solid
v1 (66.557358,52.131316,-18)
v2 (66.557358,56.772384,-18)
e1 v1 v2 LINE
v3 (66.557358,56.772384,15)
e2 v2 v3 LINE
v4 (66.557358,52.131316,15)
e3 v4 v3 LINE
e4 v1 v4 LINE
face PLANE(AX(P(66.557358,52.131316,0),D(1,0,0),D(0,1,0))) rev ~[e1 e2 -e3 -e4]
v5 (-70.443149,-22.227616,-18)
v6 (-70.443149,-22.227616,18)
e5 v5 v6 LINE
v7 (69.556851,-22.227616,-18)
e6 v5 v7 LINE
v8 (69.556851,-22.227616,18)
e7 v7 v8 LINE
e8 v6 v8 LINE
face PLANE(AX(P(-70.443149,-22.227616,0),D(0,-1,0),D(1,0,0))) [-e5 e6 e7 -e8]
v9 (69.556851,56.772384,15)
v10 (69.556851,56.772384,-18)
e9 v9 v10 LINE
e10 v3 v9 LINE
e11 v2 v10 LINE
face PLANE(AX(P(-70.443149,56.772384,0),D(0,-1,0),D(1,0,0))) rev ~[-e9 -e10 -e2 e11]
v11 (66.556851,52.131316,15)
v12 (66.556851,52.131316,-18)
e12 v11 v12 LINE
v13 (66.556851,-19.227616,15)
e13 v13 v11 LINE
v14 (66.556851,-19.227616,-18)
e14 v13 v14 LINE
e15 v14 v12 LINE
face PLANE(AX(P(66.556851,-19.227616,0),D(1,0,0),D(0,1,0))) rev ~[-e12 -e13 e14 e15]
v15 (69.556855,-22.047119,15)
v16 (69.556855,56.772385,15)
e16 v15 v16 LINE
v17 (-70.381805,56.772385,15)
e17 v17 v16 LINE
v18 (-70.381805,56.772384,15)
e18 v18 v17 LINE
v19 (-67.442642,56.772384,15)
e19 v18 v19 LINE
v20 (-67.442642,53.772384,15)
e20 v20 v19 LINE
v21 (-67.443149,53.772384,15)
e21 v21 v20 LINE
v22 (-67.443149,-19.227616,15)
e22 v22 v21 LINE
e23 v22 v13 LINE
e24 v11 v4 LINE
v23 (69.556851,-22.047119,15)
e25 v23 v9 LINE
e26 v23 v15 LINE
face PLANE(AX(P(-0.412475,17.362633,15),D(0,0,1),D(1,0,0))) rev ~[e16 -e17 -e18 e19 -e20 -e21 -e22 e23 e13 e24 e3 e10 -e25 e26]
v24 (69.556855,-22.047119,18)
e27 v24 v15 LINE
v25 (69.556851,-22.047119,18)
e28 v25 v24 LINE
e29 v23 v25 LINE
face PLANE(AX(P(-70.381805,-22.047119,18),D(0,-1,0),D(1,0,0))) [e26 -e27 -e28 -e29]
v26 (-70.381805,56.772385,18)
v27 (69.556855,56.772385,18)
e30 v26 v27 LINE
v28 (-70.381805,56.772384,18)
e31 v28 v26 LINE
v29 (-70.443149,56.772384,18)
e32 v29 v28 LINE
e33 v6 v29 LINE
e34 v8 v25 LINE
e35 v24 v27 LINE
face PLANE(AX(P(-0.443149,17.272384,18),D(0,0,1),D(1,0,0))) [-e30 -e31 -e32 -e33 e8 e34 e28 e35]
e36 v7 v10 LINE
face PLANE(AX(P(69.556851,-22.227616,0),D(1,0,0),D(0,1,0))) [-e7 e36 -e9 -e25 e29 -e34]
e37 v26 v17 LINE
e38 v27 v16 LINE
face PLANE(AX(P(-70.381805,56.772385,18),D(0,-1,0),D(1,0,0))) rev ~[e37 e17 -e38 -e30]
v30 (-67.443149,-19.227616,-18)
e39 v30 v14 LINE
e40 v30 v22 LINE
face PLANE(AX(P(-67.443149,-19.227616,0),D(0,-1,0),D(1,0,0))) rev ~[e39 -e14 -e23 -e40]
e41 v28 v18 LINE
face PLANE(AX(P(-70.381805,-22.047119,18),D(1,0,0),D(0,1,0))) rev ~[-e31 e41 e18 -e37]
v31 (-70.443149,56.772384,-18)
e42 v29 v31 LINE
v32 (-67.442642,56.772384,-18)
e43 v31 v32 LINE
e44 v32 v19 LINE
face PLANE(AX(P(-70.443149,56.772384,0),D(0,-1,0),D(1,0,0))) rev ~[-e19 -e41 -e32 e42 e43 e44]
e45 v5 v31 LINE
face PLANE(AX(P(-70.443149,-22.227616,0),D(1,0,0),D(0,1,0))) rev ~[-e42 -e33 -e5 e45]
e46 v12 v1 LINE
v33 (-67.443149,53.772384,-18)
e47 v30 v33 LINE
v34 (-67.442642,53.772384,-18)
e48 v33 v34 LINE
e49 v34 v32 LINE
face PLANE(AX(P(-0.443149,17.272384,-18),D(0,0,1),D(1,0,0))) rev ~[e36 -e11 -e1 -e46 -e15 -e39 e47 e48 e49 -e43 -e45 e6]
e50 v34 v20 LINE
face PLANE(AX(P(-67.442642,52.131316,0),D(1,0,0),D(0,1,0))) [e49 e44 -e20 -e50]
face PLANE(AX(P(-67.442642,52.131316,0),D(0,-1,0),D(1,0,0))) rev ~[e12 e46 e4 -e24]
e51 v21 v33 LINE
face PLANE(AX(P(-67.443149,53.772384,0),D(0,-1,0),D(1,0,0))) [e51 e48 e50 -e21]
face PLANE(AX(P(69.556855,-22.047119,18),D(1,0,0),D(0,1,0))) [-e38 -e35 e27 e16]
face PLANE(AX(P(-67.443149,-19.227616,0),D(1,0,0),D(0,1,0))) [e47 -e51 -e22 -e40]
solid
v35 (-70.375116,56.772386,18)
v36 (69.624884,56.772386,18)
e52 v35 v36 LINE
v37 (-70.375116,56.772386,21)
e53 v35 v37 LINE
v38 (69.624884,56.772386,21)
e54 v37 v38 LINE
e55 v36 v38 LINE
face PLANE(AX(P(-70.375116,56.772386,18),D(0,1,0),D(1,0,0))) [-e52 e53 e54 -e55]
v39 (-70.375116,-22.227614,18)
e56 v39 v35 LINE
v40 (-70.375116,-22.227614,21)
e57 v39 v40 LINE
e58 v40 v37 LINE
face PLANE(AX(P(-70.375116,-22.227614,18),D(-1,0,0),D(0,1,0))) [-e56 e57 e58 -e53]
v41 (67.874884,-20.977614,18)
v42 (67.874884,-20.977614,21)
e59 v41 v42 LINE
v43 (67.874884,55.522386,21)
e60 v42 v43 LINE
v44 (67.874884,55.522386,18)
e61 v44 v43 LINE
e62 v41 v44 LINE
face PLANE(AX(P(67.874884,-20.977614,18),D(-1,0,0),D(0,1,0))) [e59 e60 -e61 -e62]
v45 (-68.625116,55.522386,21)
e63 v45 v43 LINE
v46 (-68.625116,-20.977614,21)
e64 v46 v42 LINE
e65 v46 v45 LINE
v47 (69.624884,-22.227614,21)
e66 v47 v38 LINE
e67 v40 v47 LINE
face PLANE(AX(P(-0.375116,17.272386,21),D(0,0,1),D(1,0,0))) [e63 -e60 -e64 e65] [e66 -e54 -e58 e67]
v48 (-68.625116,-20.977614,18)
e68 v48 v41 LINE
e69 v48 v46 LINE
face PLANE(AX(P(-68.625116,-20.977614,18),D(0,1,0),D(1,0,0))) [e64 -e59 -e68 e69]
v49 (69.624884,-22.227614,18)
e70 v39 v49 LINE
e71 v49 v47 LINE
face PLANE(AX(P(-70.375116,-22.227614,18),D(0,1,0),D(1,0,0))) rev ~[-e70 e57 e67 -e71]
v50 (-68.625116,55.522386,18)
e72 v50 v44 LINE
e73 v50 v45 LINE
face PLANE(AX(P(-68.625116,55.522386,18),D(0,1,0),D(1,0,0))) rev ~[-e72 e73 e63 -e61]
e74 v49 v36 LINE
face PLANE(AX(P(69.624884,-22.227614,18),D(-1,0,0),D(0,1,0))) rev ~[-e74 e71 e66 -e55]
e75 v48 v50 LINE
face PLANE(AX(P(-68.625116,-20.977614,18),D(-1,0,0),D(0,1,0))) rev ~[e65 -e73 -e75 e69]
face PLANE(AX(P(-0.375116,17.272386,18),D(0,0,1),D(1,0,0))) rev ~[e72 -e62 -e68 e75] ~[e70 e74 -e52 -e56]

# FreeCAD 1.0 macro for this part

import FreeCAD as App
import Part
import Sketcher
from FreeCAD import Vector
Q = App.Units.Quantity


def add_polygon(sketch, points):
    """Adds a closed chain of lines whose ends are joined by coincident constraints."""
    first, n = sketch.GeometryCount, len(points)
    for a, b in zip(points, points[1:] + points[:1]):
        sketch.addGeometry(Part.LineSegment(App.Vector(*a, 0), App.Vector(*b, 0)), False)
    for i in range(n):
        sketch.addConstraint(Sketcher.Constraint("Coincident", first + i, 2, first + (i + 1) % n, 1))

doc = App.newDocument("Part")
params = doc.addObject("Spreadsheet::Sheet", "Params")
for row, (alias, value) in enumerate([
    ("sketch1_width", "134 mm"),
    ("sketch1_height", "5 mm"),
    ("pad1_length", "15 mm"),
    ("pad1_length2", "18 mm"),
    ("sketch2_width", "140 mm"),
    ("sketch2_width2", "134 mm"),
    ("sketch2_height", "79 mm"),
    ("sketch2_height2", "73 mm"),
    ("pad2_length", "36 mm"),
    ("pad3_length", "3 mm"),
    ("sketch4_width", "140 mm"),
    ("sketch4_height", "79 mm"),
    ("sketch4_width2", "136.5 mm"),
    ("sketch4_height2", "76.5 mm"),
    ("pad4_length", "3 mm"),
], start=1):
    params.set(f"A{row}", alias)
    params.set(f"B{row}", "=" + value)
    params.setAlias(f"B{row}", alias)

body = doc.addObject("PartDesign::Body", "Body")

sketch1 = doc.addObject("Sketcher::SketchObject", "Sketch")
body.addObject(sketch1)
sketch1.AttachmentSupport = (doc.XY_Plane, [""])
sketch1.MapMode = "FlatFace"
add_polygon(sketch1, [(-67.442642, 57.131316), (-67.442642, 52.131316), (66.557358, 52.131316), (66.557358, 57.131316)])
sketch1.addConstraint(Sketcher.Constraint("Vertical", 0))
sketch1.addConstraint(Sketcher.Constraint("Horizontal", 1))
sketch1.addConstraint(Sketcher.Constraint("Vertical", 2))
sketch1.addConstraint(Sketcher.Constraint("Horizontal", 3))
sketch1.addConstraint(Sketcher.Constraint("DistanceX", 1, 1, 1, 2, Q("134 mm")))
sketch1.addConstraint(Sketcher.Constraint("DistanceY", 0, 2, 0, 1, Q("5 mm")))
sketch1.addConstraint(Sketcher.Constraint("DistanceX", 0, 2, -1, 1, Q("67.442642 mm")))
sketch1.addConstraint(Sketcher.Constraint("DistanceY", -1, 1, 0, 2, Q("52.131316 mm")))
sketch1.setExpression("Constraints[8]", "Params.sketch1_width")
sketch1.setExpression("Constraints[9]", "Params.sketch1_height")
pad1 = doc.addObject("PartDesign::Pad", "Pad")
body.addObject(pad1)
pad1.Profile = sketch1
pad1.Type = "TwoLengths"
pad1.setExpression("Length", "Params.pad1_length")
pad1.setExpression("Length2", "Params.pad1_length2")
body2 = doc.addObject("PartDesign::Body", "Body001")

sketch2 = doc.addObject("Sketcher::SketchObject", "Sketch001")
body2.addObject(sketch2)
sketch2.AttachmentSupport = (doc.getObject("XY_Plane001"), [""])
sketch2.MapMode = "FlatFace"
add_polygon(sketch2, [(-70.443149, 56.772384), (-70.443149, -22.227616), (69.556851, -22.227616), (69.556851, 56.772384)])
add_polygon(sketch2, [(66.556851, -19.227616), (-67.443149, -19.227616), (-67.443149, 53.772384), (66.556851, 53.772384)])
sketch2.addConstraint(Sketcher.Constraint("Vertical", 0))
sketch2.addConstraint(Sketcher.Constraint("Horizontal", 1))
sketch2.addConstraint(Sketcher.Constraint("Vertical", 2))
sketch2.addConstraint(Sketcher.Constraint("Horizontal", 3))
sketch2.addConstraint(Sketcher.Constraint("Horizontal", 4))
sketch2.addConstraint(Sketcher.Constraint("Vertical", 5))
sketch2.addConstraint(Sketcher.Constraint("Horizontal", 6))
sketch2.addConstraint(Sketcher.Constraint("Vertical", 7))
sketch2.addConstraint(Sketcher.Constraint("DistanceX", 1, 1, 1, 2, Q("140 mm")))
sketch2.addConstraint(Sketcher.Constraint("DistanceX", 4, 2, 4, 1, Q("134 mm")))
sketch2.addConstraint(Sketcher.Constraint("DistanceY", 0, 2, 0, 1, Q("79 mm")))
sketch2.addConstraint(Sketcher.Constraint("DistanceY", 5, 1, 5, 2, Q("73 mm")))
sketch2.addConstraint(Sketcher.Constraint("DistanceX", 0, 2, 4, 2, Q("3 mm")))
sketch2.addConstraint(Sketcher.Constraint("DistanceY", 0, 2, 4, 2, Q("3 mm")))
sketch2.addConstraint(Sketcher.Constraint("DistanceX", 0, 2, -1, 1, Q("70.443149 mm")))
sketch2.addConstraint(Sketcher.Constraint("DistanceY", 0, 2, -1, 1, Q("22.227616 mm")))
sketch2.setExpression("Constraints[16]", "Params.sketch2_width")
sketch2.setExpression("Constraints[17]", "Params.sketch2_width2")
sketch2.setExpression("Constraints[18]", "Params.sketch2_height")
sketch2.setExpression("Constraints[19]", "Params.sketch2_height2")
pad2 = doc.addObject("PartDesign::Pad", "Pad001")
body2.addObject(pad2)
pad2.Profile = sketch2
pad2.setExpression("Length", "Params.pad2_length")
pad2.Midplane = True
body3 = doc.addObject("PartDesign::Body", "Body002")

sketch3 = doc.addObject("Sketcher::SketchObject", "Sketch002")
body3.addObject(sketch3)
sketch3.AttachmentSupport = (doc.getObject("XY_Plane002"), [""])
sketch3.MapMode = "FlatFace"
sketch3.AttachmentOffset = App.Placement(Vector(0, 0, 18), App.Rotation())
add_polygon(sketch3, [(-70.381805, 56.772385), (-70.381805, -22.047119), (69.556855, -22.047119), (69.556855, 56.772385)])
sketch3.addConstraint(Sketcher.Constraint("Vertical", 0))
sketch3.addConstraint(Sketcher.Constraint("Horizontal", 1))
sketch3.addConstraint(Sketcher.Constraint("Vertical", 2))
sketch3.addConstraint(Sketcher.Constraint("Horizontal", 3))
sketch3.addConstraint(Sketcher.Constraint("DistanceX", 1, 1, 1, 2, Q("139.93866 mm")))
sketch3.addConstraint(Sketcher.Constraint("DistanceY", 0, 2, 0, 1, Q("78.819504 mm")))
sketch3.addConstraint(Sketcher.Constraint("DistanceY", 0, 2, -1, 1, Q("22.047119 mm")))
sketch3.addConstraint(Sketcher.Constraint("DistanceX", 0, 2, -1, 1, Q("70.381805 mm")))
pad3 = doc.addObject("PartDesign::Pad", "Pad002")
body3.addObject(pad3)
pad3.Profile = sketch3
pad3.setExpression("Length", "Params.pad3_length")
pad3.Reversed = True
doc.recompute()

boolean = doc.addObject("PartDesign::Boolean", "Boolean")
body3.addObject(boolean)
boolean.Type = "Fuse"
boolean.addObjects([body2])
doc.recompute()

boolean2 = doc.addObject("PartDesign::Boolean", "Boolean001")
body3.addObject(boolean2)
boolean2.Type = "Cut"
boolean2.addObjects([body])
body4 = doc.addObject("PartDesign::Body", "Body003")

sketch4 = doc.addObject("Sketcher::SketchObject", "Sketch003")
body4.addObject(sketch4)
sketch4.AttachmentSupport = (doc.getObject("XY_Plane003"), [""])
sketch4.MapMode = "FlatFace"
sketch4.AttachmentOffset = App.Placement(Vector(0, 0, 18), App.Rotation())
add_polygon(sketch4, [(-70.375116, 56.772386), (-70.375116, -22.227614), (69.624884, -22.227614), (69.624884, 56.772386)])
add_polygon(sketch4, [(67.874884, -20.977614), (-68.625116, -20.977614), (-68.625116, 55.522386), (67.874884, 55.522386)])
sketch4.addConstraint(Sketcher.Constraint("Vertical", 0))
sketch4.addConstraint(Sketcher.Constraint("Horizontal", 1))
sketch4.addConstraint(Sketcher.Constraint("Vertical", 2))
sketch4.addConstraint(Sketcher.Constraint("Horizontal", 3))
sketch4.addConstraint(Sketcher.Constraint("Horizontal", 4))
sketch4.addConstraint(Sketcher.Constraint("Vertical", 5))
sketch4.addConstraint(Sketcher.Constraint("Horizontal", 6))
sketch4.addConstraint(Sketcher.Constraint("Vertical", 7))
sketch4.addConstraint(Sketcher.Constraint("DistanceX", 1, 1, 1, 2, Q("140 mm")))
sketch4.addConstraint(Sketcher.Constraint("DistanceY", 0, 2, 0, 1, Q("79 mm")))
sketch4.addConstraint(Sketcher.Constraint("DistanceX", 4, 2, 4, 1, Q("136.5 mm")))
sketch4.addConstraint(Sketcher.Constraint("DistanceY", 5, 1, 5, 2, Q("76.5 mm")))
sketch4.addConstraint(Sketcher.Constraint("DistanceX", 0, 2, 4, 2, Q("1.75 mm")))
sketch4.addConstraint(Sketcher.Constraint("DistanceY", 0, 2, 4, 2, Q("1.25 mm")))
sketch4.addConstraint(Sketcher.Constraint("DistanceX", 0, 2, -1, 1, Q("70.375116 mm")))
sketch4.addConstraint(Sketcher.Constraint("DistanceY", 0, 2, -1, 1, Q("22.227614 mm")))
sketch4.setExpression("Constraints[16]", "Params.sketch4_width")
sketch4.setExpression("Constraints[17]", "Params.sketch4_height")
sketch4.setExpression("Constraints[18]", "Params.sketch4_width2")
sketch4.setExpression("Constraints[19]", "Params.sketch4_height2")
pad4 = doc.addObject("PartDesign::Pad", "Pad003")
body4.addObject(pad4)
pad4.Profile = sketch4
pad4.setExpression("Length", "Params.pad4_length")

doc.recompute()
